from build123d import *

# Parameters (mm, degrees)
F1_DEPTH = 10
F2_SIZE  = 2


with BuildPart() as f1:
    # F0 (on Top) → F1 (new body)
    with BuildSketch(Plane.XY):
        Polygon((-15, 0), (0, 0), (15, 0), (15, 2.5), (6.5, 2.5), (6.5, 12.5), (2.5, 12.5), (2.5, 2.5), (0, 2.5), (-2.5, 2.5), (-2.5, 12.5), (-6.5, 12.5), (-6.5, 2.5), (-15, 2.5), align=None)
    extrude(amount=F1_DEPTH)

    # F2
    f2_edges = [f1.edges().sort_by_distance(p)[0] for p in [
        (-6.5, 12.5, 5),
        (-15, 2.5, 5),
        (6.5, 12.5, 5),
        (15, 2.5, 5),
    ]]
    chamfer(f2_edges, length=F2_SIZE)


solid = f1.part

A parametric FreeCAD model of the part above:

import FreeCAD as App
import Part
import Sketcher
from FreeCAD import Vector


def edges_at(feature, points):
    """Names of the edges that pass closest to the given points."""
    edges = feature.Shape.Edges
    near = lambda p: min(range(len(edges)), key=lambda i: edges[i].distToShape(Part.Vertex(*p))[0])
    return sorted({f"Edge{near(p) + 1}" for p in points})


def add_polygon(sketch, points):
    """Adds a closed chain of lines whose ends are joined by coincident constraints."""
    first, n = sketch.GeometryCount, len(points)
    for a, b in zip(points, points[1:] + points[:1]):
        sketch.addGeometry(Part.LineSegment(App.Vector(*a, 0), App.Vector(*b, 0)), False)
    for i in range(n):
        sketch.addConstraint(Sketcher.Constraint("Coincident", first + i, 2, first + (i + 1) % n, 1))

doc = App.newDocument("Part")
body = doc.addObject("PartDesign::Body", "Body")

sketch1 = doc.addObject("Sketcher::SketchObject", "Sketch")
body.addObject(sketch1)
sketch1.AttachmentSupport = (doc.XY_Plane, [""])
sketch1.MapMode = "FlatFace"
add_polygon(sketch1, [(-15, 0), (15, 0), (15, 2.5), (6.5, 2.5), (6.5, 12.5), (2.5, 12.5), (2.5, 2.5), (-2.5, 2.5), (-2.5, 12.5), (-6.5, 12.5), (-6.5, 2.5), (-15, 2.5)])
sketch1.addConstraint(Sketcher.Constraint("Horizontal", 0))
sketch1.addConstraint(Sketcher.Constraint("Vertical", 1))
sketch1.addConstraint(Sketcher.Constraint("Horizontal", 2))
sketch1.addConstraint(Sketcher.Constraint("Vertical", 3))
sketch1.addConstraint(Sketcher.Constraint("Horizontal", 4))
sketch1.addConstraint(Sketcher.Constraint("Vertical", 5))
sketch1.addConstraint(Sketcher.Constraint("Horizontal", 6))
sketch1.addConstraint(Sketcher.Constraint("Vertical", 7))
sketch1.addConstraint(Sketcher.Constraint("Horizontal", 8))
sketch1.addConstraint(Sketcher.Constraint("Vertical", 9))
sketch1.addConstraint(Sketcher.Constraint("Horizontal", 10))
sketch1.addConstraint(Sketcher.Constraint("Vertical", 11))
sketch1.addConstraint(Sketcher.Constraint("Symmetric", 0, 2, 11, 2, -1, 1))
sketch1.addConstraint(Sketcher.Constraint("Symmetric", 4, 2, 7, 2, -2))
sketch1.addConstraint(Sketcher.Constraint("Symmetric", 2, 2, 9, 2, -2))
sketch1.addConstraint(Sketcher.Constraint("Horizontal", 2, 2, 5, 2))
sketch1.addConstraint(Sketcher.Constraint("DistanceX", 0, 1, 0, 2, 30.0))
sketch1.addConstraint(Sketcher.Constraint("DistanceX", 4, 2, 4, 1, 4.0))
sketch1.addConstraint(Sketcher.Constraint("DistanceX", 6, 2, 6, 1, 5.0))
sketch1.addConstraint(Sketcher.Constraint("DistanceY", 3, 1, 3, 2, 10.0))
sketch1.addConstraint(Sketcher.Constraint("DistanceY", 1, 1, 1, 2, 2.5))
pad1 = doc.addObject("PartDesign::Pad", "Pad")
body.addObject(pad1)
pad1.Profile = sketch1
pad1.Length = 10
doc.recompute()

chamfer = doc.addObject("PartDesign::Chamfer", "Chamfer")
body.addObject(chamfer)
chamfer.Base = (pad1, edges_at(pad1, [
    (-6.5, 12.5, 5),
    (-15, 2.5, 5),
    (6.5, 12.5, 5),
    (15, 2.5, 5),
]))
chamfer.Size = 2

doc.recompute()
